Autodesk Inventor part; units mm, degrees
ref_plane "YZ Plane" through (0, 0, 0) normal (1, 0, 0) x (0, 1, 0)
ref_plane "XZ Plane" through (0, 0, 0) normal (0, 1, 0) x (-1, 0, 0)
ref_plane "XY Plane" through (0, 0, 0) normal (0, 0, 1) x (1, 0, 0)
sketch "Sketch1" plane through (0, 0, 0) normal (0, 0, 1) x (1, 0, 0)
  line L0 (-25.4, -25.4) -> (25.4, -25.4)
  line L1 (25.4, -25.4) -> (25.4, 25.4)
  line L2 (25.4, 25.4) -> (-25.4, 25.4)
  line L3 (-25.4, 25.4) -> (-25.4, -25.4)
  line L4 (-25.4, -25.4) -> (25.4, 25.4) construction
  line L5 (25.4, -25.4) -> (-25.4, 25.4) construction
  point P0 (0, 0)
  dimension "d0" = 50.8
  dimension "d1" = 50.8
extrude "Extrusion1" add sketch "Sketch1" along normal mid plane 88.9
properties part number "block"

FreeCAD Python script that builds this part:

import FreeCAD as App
import Part
import Sketcher

V = App.Vector
Q = App.Units.Quantity


def add_polygon(sketch, points):
    """Adds a closed chain of lines whose ends are joined by coincident constraints."""
    first, n = sketch.GeometryCount, len(points)
    for a, b in zip(points, points[1:] + points[:1]):
        sketch.addGeometry(Part.LineSegment(App.Vector(*a, 0), App.Vector(*b, 0)), False)
    for i in range(n):
        sketch.addConstraint(Sketcher.Constraint("Coincident", first + i, 2, first + (i + 1) % n, 1))

doc = App.newDocument("Part")
body = doc.addObject("PartDesign::Body", "Body")

# Sketch on XY plane
sketch1 = body.newObject("Sketcher::SketchObject", "Sketch")
sketch1.AttachmentSupport = (doc.getObject("XY_Plane"), [""])
sketch1.MapMode = "FlatFace"
add_polygon(sketch1, [(-25, 25), (-25, -25), (25, -25), (25, 25)])  # lines 0-3
sketch1.addConstraint([
    Sketcher.Constraint("Vertical", 0),
    Sketcher.Constraint("Horizontal", 1),
    Sketcher.Constraint("Vertical", 2),
    Sketcher.Constraint("Horizontal", 3),
    Sketcher.Constraint("Symmetric", 0, 2, 2, 2, -1, 1),
    Sketcher.Constraint("Equal", 3, 0),
    Sketcher.Constraint("DistanceX", 1, 1, 1, 2, Q("2 in")),
])
pad1 = body.newObject("PartDesign::Pad", "Pad")
pad1.Profile = sketch1
pad1.Length = Q("3.5 in")
pad1.Midplane = True

doc.recompute()
